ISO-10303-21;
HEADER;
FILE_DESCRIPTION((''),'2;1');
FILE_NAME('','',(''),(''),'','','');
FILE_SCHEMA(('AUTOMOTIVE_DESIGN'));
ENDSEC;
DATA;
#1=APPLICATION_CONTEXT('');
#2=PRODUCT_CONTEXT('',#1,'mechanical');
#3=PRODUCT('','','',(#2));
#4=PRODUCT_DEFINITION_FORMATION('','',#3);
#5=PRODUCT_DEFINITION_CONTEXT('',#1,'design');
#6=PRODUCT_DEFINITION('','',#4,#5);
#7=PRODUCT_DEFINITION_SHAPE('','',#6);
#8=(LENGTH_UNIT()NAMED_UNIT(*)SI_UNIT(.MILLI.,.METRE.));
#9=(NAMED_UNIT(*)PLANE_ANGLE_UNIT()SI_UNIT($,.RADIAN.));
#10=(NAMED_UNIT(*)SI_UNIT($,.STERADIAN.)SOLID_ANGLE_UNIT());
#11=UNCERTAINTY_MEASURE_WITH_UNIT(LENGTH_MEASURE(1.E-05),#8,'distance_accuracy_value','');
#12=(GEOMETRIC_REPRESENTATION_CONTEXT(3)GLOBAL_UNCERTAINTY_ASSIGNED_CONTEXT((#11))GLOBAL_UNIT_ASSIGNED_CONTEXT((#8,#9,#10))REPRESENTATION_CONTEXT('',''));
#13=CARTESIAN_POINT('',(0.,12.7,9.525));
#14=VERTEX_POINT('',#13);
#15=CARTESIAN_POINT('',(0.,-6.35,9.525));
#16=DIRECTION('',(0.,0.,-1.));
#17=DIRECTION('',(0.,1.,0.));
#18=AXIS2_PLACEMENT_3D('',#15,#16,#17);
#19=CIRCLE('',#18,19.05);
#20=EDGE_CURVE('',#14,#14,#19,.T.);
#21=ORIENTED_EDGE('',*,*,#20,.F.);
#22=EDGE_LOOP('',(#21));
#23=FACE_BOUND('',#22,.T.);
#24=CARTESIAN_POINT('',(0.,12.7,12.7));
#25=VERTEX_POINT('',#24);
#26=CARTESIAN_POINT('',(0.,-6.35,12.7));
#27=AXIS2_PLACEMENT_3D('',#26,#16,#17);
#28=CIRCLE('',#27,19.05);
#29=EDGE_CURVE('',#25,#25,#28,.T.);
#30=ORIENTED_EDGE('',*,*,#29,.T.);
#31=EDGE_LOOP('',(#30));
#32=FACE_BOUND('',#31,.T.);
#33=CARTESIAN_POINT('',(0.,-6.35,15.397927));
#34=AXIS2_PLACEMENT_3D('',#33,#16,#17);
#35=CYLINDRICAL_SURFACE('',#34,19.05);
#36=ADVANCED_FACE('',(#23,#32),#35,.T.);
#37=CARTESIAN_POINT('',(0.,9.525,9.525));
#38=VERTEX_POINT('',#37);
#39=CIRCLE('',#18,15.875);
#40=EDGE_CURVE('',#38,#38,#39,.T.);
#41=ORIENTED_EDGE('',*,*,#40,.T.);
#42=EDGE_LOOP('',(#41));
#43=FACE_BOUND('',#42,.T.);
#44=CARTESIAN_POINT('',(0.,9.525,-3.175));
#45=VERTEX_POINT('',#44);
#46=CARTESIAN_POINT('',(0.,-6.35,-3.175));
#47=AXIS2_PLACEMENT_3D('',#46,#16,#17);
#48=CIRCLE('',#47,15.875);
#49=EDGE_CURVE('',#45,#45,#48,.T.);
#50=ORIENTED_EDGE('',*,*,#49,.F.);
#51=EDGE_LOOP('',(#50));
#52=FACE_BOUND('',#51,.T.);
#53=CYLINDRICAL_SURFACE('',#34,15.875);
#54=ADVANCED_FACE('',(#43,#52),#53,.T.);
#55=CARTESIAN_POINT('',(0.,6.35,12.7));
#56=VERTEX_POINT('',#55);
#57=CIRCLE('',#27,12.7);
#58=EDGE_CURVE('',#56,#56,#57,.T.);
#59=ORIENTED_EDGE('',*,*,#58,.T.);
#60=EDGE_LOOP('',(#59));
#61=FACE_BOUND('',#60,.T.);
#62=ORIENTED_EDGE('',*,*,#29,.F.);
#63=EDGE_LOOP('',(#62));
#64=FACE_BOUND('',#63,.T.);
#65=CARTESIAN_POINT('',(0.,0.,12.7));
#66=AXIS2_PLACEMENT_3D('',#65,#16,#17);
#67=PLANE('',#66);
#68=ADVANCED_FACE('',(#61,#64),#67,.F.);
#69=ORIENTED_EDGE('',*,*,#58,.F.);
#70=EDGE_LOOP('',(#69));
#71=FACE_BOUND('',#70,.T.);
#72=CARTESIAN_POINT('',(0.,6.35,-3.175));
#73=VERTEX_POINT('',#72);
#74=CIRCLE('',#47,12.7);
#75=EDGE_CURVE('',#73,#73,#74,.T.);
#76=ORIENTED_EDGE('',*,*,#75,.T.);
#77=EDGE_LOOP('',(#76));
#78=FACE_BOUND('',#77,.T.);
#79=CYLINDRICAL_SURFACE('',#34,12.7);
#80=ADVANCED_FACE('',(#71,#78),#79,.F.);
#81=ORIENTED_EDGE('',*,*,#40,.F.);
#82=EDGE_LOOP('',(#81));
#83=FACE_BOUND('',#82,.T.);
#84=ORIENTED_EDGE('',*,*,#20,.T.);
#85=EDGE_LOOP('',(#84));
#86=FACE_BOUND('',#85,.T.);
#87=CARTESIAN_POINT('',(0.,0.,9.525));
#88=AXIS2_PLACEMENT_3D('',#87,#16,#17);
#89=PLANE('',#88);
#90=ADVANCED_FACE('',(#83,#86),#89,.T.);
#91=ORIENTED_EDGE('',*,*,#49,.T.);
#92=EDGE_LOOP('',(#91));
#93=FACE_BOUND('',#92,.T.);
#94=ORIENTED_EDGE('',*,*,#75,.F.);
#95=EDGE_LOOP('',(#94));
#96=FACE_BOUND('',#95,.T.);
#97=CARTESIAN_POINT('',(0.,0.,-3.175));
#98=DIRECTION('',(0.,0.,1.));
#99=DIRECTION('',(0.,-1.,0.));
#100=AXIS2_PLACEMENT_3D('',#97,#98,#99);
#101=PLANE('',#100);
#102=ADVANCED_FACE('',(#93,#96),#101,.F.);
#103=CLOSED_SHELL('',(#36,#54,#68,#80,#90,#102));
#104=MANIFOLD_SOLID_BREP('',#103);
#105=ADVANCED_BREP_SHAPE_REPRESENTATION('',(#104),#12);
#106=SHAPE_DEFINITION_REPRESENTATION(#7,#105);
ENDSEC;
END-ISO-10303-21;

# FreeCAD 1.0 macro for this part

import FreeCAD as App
import Part
import Sketcher
Q = App.Units.Quantity


def add_polygon(sketch, points):
    """Adds a closed chain of lines whose ends are joined by coincident constraints."""
    first, n = sketch.GeometryCount, len(points)
    for a, b in zip(points, points[1:] + points[:1]):
        sketch.addGeometry(Part.LineSegment(App.Vector(*a, 0), App.Vector(*b, 0)), False)
    for i in range(n):
        sketch.addConstraint(Sketcher.Constraint("Coincident", first + i, 2, first + (i + 1) % n, 1))

doc = App.newDocument("Part")
body = doc.addObject("PartDesign::Body", "Body")

# Sketch on YZ plane
sketch1 = body.newObject("Sketcher::SketchObject", "Sketch")
sketch1.AttachmentSupport = (doc.getObject("YZ_Plane"), [""])
sketch1.MapMode = "FlatFace"
add_polygon(sketch1, [(12.7, 12.7), (6.3, 12.7), (6.3, -3.2), (9.5, -3.2), (9.5, 9.5), (12.7, 9.5)])  # lines 0-5
sketch1.addGeometry(Part.LineSegment(App.Vector(-6.3, -3.2, 0), App.Vector(-6.3, 12.7, 0)), True)  # axis
sketch1.addConstraint([
    Sketcher.Constraint("Horizontal", 0),
    Sketcher.Constraint("Vertical", 1),
    Sketcher.Constraint("Horizontal", 2),
    Sketcher.Constraint("Vertical", 3),
    Sketcher.Constraint("Horizontal", 4),
    Sketcher.Constraint("Vertical", 5),
    Sketcher.Constraint("Vertical", 6),
    Sketcher.Constraint("Symmetric", 1, 2, 6, 1, -2),
    Sketcher.Constraint("Horizontal", 5, 2, 6, 2),
    Sketcher.Constraint("Equal", 2, 4),
    Sketcher.Constraint("Equal", 4, 5),
    Sketcher.Constraint("DistanceY", 3, 1, 3, 2, Q("0.5 in")),
    Sketcher.Constraint("DistanceX", 0, 2, 0, 1, Q("0.25 in")),
    Sketcher.Constraint("DistanceY", -1, 1, 0, 2, Q("0.5 in")),
    Sketcher.Constraint("DistanceX", -1, 1, 4, 2, Q("0.5 in")),
])
revolution = body.newObject("PartDesign::Revolution", "Revolution")
revolution.Profile = sketch1
revolution.ReferenceAxis = (sketch1, ["Axis0"])
revolution.Angle = 360

doc.recompute()
